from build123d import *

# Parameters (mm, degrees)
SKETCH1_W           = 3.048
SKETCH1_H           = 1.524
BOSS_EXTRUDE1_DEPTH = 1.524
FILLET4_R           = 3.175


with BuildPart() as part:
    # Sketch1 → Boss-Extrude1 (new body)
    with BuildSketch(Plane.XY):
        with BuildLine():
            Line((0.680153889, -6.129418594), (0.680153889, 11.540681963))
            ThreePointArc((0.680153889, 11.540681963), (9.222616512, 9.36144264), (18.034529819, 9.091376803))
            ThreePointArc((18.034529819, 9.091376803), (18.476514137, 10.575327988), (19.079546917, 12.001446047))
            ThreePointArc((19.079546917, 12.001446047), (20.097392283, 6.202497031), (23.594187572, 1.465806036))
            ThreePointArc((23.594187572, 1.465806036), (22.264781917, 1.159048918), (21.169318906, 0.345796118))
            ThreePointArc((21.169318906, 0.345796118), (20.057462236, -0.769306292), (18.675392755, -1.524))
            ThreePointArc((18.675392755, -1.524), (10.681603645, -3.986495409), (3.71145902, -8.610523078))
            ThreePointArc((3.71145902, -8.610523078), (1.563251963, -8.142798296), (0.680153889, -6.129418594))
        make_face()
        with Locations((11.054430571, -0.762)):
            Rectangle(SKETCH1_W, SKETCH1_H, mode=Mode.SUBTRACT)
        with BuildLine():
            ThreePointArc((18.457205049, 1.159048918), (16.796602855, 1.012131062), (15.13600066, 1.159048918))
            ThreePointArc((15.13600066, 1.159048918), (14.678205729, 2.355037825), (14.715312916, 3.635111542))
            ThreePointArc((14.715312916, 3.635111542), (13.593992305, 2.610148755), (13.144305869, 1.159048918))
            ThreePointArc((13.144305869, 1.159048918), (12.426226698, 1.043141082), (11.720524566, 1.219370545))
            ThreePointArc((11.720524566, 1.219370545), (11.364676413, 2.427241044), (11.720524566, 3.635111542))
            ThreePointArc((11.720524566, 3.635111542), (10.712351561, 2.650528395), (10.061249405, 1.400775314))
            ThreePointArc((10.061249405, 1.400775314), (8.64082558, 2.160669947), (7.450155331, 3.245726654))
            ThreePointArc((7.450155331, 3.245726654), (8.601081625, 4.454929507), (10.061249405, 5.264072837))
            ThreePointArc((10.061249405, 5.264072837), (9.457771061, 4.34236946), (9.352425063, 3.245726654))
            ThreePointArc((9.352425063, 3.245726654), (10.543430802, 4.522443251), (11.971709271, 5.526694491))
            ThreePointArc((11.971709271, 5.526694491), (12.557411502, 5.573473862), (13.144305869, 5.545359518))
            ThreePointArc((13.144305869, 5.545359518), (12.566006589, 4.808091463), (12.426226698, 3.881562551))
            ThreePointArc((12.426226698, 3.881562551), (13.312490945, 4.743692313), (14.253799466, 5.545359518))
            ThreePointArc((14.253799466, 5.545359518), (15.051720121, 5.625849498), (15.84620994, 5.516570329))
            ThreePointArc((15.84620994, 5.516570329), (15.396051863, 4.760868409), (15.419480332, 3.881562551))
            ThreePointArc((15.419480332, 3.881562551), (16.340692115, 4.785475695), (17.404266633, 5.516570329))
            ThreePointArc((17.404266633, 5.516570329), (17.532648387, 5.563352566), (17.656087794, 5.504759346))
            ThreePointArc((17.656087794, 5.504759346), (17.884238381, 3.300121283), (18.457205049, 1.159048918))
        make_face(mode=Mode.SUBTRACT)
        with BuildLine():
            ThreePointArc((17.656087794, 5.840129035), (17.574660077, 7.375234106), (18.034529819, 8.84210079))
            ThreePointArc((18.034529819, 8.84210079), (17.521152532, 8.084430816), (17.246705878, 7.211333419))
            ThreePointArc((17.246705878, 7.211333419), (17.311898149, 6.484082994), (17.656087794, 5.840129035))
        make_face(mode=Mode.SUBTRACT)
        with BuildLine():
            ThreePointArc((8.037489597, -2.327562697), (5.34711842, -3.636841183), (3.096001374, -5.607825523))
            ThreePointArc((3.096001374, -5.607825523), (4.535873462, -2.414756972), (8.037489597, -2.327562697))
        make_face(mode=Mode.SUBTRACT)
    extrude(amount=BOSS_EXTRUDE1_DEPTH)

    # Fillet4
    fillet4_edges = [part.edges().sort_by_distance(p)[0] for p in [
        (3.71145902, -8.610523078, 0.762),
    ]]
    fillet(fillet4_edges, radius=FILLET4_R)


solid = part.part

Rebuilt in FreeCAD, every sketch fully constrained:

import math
import FreeCAD as App
import Part
import Sketcher

V = App.Vector
Q = App.Units.Quantity


def edges_at(feature, points):
    """Names of the edges that pass closest to the given points."""
    edges = feature.Shape.Edges
    near = lambda p: min(range(len(edges)), key=lambda i: edges[i].distToShape(Part.Vertex(*p))[0])
    return sorted({f"Edge{near(p) + 1}" for p in points})


def add_polygon(sketch, points):
    """Adds a closed chain of lines whose ends are joined by coincident constraints."""
    first, n = sketch.GeometryCount, len(points)
    for a, b in zip(points, points[1:] + points[:1]):
        sketch.addGeometry(Part.LineSegment(App.Vector(*a, 0), App.Vector(*b, 0)), False)
    for i in range(n):
        sketch.addConstraint(Sketcher.Constraint("Coincident", first + i, 2, first + (i + 1) % n, 1))

doc = App.newDocument("Part")
body = doc.addObject("PartDesign::Body", "Body")

sketch1 = body.newObject("Sketcher::SketchObject", "Sketch")
sketch1.AttachmentSupport = (doc.getObject("XY_Plane"), [""])
sketch1.MapMode = "FlatFace"
sketch1.addGeometry(Part.LineSegment(V(0.680154, 11.540682, 0), V(0.680154, -6.129419, 0)), False)
sketch1.addGeometry(Part.ArcOfCircle(Part.Circle(V(3.096001, -6.270152, 0), V(0, 0, 1), 2.419943), math.radians(176.666045), math.radians(284.733729)), False)
sketch1.addGeometry(Part.ArcOfCircle(Part.Circle(V(23.202224, -30.425094, 0), V(0, 0, 1), 29.253469), math.radians(98.902014), math.radians(131.779979)), False)
sketch1.addGeometry(Part.ArcOfCircle(Part.Circle(V(16.755294, 3.635112, 0), V(0, 0, 1), 5.504835), math.radians(-69.58593), math.radians(-36.693347)), False)
sketch1.addGeometry(Part.ArcOfCircle(Part.Circle(V(23.663791, -1.869864, 0), V(0, 0, 1), 3.336396), math.radians(91.19538), math.radians(138.387612)), False)
sketch1.addGeometry(Part.ArcOfCircle(Part.Circle(V(31.911357, 11.264914, 0), V(0, 0, 1), 12.85293), math.radians(176.714889), math.radians(229.67647)), False)
sketch1.addGeometry(Part.ArcOfCircle(Part.Circle(V(31.662669, 5.840129, 0), V(0, 0, 1), 14.010595), math.radians(153.91135), math.radians(166.581831)), False)
sketch1.addGeometry(Part.ArcOfCircle(Part.Circle(V(14.856022, 49.27653, 0), V(0, 0, 1), 40.310662), math.radians(-110.589216), math.radians(-85.477515)), False)
add_polygon(sketch1, [(9.530431, -1.524), (9.530431, 0), (12.578431, 0), (12.578431, -1.524)])
sketch1.addGeometry(Part.ArcOfCircle(Part.Circle(V(11.58102, -13.027781, 0), V(0, 0, 1), 11.271703), math.radians(108.323028), math.radians(138.831043)), False)
sketch1.addGeometry(Part.ArcOfCircle(Part.Circle(V(6.356045, -5.156719, 0), V(0, 0, 1), 3.291107), math.radians(59.275837), math.radians(187.878234)), False)
sketch1.addGeometry(Part.ArcOfCircle(Part.Circle(V(16.796603, 10.470425, 0), V(0, 0, 1), 9.458294), math.radians(-100.111889), math.radians(-79.888111)), False)
sketch1.addGeometry(Part.ArcOfCircle(Part.Circle(V(17.898951, 2.902249, 0), V(0, 0, 1), 3.2669), math.radians(167.036531), math.radians(212.248634)), False)
sketch1.addGeometry(Part.ArcOfCircle(Part.Circle(V(16.043979, 1.055686, 0), V(0, 0, 1), 2.901515), math.radians(117.253066), math.radians(177.958485)), False)
sketch1.addGeometry(Part.ArcOfCircle(Part.Circle(V(12.502818, 2.850936, 0), V(0, 0, 1), 1.809417), math.radians(-115.616509), math.radians(-69.235513)), False)
sketch1.addGeometry(Part.ArcOfCircle(Part.Circle(V(13.592564, 2.427241, 0), V(0, 0, 1), 2.227887), math.radians(147.169224), math.radians(212.830777)), False)
sketch1.addGeometry(Part.ArcOfCircle(Part.Circle(V(14.296905, -0.011452, 0), V(0, 0, 1), 4.464881), math.radians(125.242074), math.radians(161.56088)), False)
sketch1.addGeometry(Part.ArcOfCircle(Part.Circle(V(12.402064, 7.483817, 0), V(0, 0, 1), 6.517884), math.radians(-139.441438), math.radians(-111.047219)), False)
sketch1.addGeometry(Part.ArcOfCircle(Part.Circle(V(11.971709, 0.094416, 0), V(0, 0, 1), 5.511371), math.radians(110.28192), math.radians(145.125315)), False)
sketch1.addGeometry(Part.ArcOfCircle(Part.Circle(V(11.626802, 3.580626, 0), V(0, 0, 1), 2.298901), math.radians(132.921855), math.radians(188.376547)), False)
sketch1.addGeometry(Part.ArcOfCircle(Part.Circle(V(16.084641, -1.840647, 0), V(0, 0, 1), 8.43765), math.radians(119.173112), math.radians(142.927952)), False)
sketch1.addGeometry(Part.ArcOfCircle(Part.Circle(V(12.630768, 0.96497, 0), V(0, 0, 1), 4.609087), math.radians(83.602907), math.radians(98.220971)), False)
sketch1.addGeometry(Part.ArcOfCircle(Part.Circle(V(14.253799, 4.079656, 0), V(0, 0, 1), 1.838277), math.radians(127.124627), math.radians(186.186224)), False)
sketch1.addGeometry(Part.ArcOfCircle(Part.Circle(V(25.898951, -9.081715, 0), V(0, 0, 1), 18.696547), math.radians(128.524584), math.radians(136.104006)), False)
sketch1.addGeometry(Part.ArcOfCircle(Part.Circle(V(14.990468, 2.237807, 0), V(0, 0, 1), 3.388596), math.radians(75.372373), math.radians(102.556152)), False)
sketch1.addGeometry(Part.ArcOfCircle(Part.Circle(V(16.925622, 4.361658, 0), V(0, 0, 1), 1.580808), math.radians(133.064631), math.radians(197.680115)), False)
sketch1.addGeometry(Part.ArcOfCircle(Part.Circle(V(21.070718, -0.956448, 0), V(0, 0, 1), 7.439276), math.radians(119.52811), math.radians(139.433248)), False)
sketch1.addGeometry(Part.ArcOfCircle(Part.Circle(V(17.524356, 5.386561, 0), V(0, 0, 1), 0.176986), math.radians(41.900576), math.radians(132.728756)), False)
sketch1.addGeometry(Part.ArcOfCircle(Part.Circle(V(31.662669, 5.840129, 0), V(0, 0, 1), 14.010595), math.radians(-178.628388), math.radians(-160.481573)), False)
sketch1.addGeometry(Part.ArcOfCircle(Part.Circle(V(19.066432, 7.00791, 0), V(0, 0, 1), 1.831061), math.radians(173.621513), math.radians(219.625155)), False)
sketch1.addGeometry(Part.ArcOfCircle(Part.Circle(V(20.363494, 6.711295, 0), V(0, 0, 1), 3.156645), math.radians(137.544122), math.radians(170.885489)), False)
sketch1.addGeometry(Part.ArcOfCircle(Part.Circle(V(21.87213, 6.833476, 0), V(0, 0, 1), 4.331483), math.radians(152.372144), math.radians(193.257735)), False)
sketch1.addConstraint([
    Sketcher.Constraint("Coincident", 0, 2, 1, 1),
    Sketcher.Constraint("Coincident", 1, 2, 2, 2),
    Sketcher.Constraint("Coincident", 2, 1, 3, 1),
    Sketcher.Constraint("Coincident", 3, 2, 4, 2),
    Sketcher.Constraint("Coincident", 4, 1, 5, 2),
    Sketcher.Constraint("Coincident", 5, 1, 6, 1),
    Sketcher.Constraint("Coincident", 6, 2, 7, 2),
    Sketcher.Constraint("Coincident", 7, 1, 0, 1),
    Sketcher.Constraint("Coincident", 12, 1, 13, 1),
    Sketcher.Constraint("Coincident", 13, 2, 12, 2),
    Sketcher.Constraint("Coincident", 14, 1, 15, 2),
    Sketcher.Constraint("Coincident", 15, 1, 16, 1),
    Sketcher.Constraint("Coincident", 16, 2, 17, 2),
    Sketcher.Constraint("Coincident", 17, 1, 18, 2),
    Sketcher.Constraint("Coincident", 18, 1, 19, 1),
    Sketcher.Constraint("Coincident", 19, 2, 20, 2),
    Sketcher.Constraint("Coincident", 20, 1, 21, 2),
    Sketcher.Constraint("Coincident", 21, 1, 22, 1),
    Sketcher.Constraint("Coincident", 22, 2, 23, 2),
    Sketcher.Constraint("Coincident", 23, 1, 24, 2),
    Sketcher.Constraint("Coincident", 24, 1, 25, 1),
    Sketcher.Constraint("Coincident", 25, 2, 26, 2),
    Sketcher.Constraint("Coincident", 26, 1, 27, 2),
    Sketcher.Constraint("Coincident", 27, 1, 28, 1),
    Sketcher.Constraint("Coincident", 28, 2, 29, 2),
    Sketcher.Constraint("Coincident", 29, 1, 30, 2),
    Sketcher.Constraint("Coincident", 30, 1, 31, 1),
    Sketcher.Constraint("Coincident", 31, 2, 14, 2),
    Sketcher.Constraint("Coincident", 32, 1, 33, 2),
    Sketcher.Constraint("Coincident", 33, 1, 34, 1),
    Sketcher.Constraint("Coincident", 34, 2, 32, 2),
    Sketcher.Constraint("Vertical", 0),
    Sketcher.Constraint("Vertical", 8),
    Sketcher.Constraint("Horizontal", 9),
    Sketcher.Constraint("Vertical", 10),
    Sketcher.Constraint("Horizontal", 11),
    Sketcher.Constraint("Coincident", 31, 3, 6, 3),
    Sketcher.Constraint("PointOnObject", 8, 2, -1),
    Sketcher.Constraint("DistanceX", 9, 1, 9, 2, Q("0.12 in")),
    Sketcher.Constraint("DistanceY", 8, 1, 8, 2, Q("0.06 in")),
    Sketcher.Constraint("DistanceY", 2, 1, -1, 1, Q("0.06 in")),
    Sketcher.Constraint("Radius", 15, 3.2669),
    Sketcher.Constraint("Radius", 22, 2.298901),
    Sketcher.Constraint("Radius", 2, 29.253469),
    Sketcher.Constraint("Radius", 5, 12.85293),
    Sketcher.Constraint("Radius", 7, 40.310662),
    Sketcher.Constraint("Radius", 19, 4.464881),
    Sketcher.Constraint("Radius", 21, 5.511371),
    Sketcher.Constraint("Radius", 23, 8.43765),
    Sketcher.Constraint("Radius", 32, 1.831061),
    Sketcher.Constraint("DistanceY", 0, 2, 0, 1, 17.670101),
    Sketcher.Constraint("Radius", 1, 2.419943),
    Sketcher.Constraint("Radius", 3, 5.504835),
    Sketcher.Constraint("Radius", 4, 3.336396),
    Sketcher.Constraint("Radius", 6, 14.010595),
    Sketcher.Constraint("Radius", 12, 11.271703),
    Sketcher.Constraint("Radius", 13, 3.291107),
    Sketcher.Constraint("Radius", 14, 9.458294),
    Sketcher.Constraint("Radius", 16, 2.901515),
    Sketcher.Constraint("Radius", 17, 1.809417),
    Sketcher.Constraint("Radius", 18, 2.227887),
    Sketcher.Constraint("Radius", 20, 6.517884),
    Sketcher.Constraint("Radius", 24, 4.609087),
    Sketcher.Constraint("Radius", 25, 1.838277),
    Sketcher.Constraint("Radius", 26, 18.696547),
    Sketcher.Constraint("Radius", 27, 3.388596),
    Sketcher.Constraint("Radius", 28, 1.580808),
    Sketcher.Constraint("Radius", 29, 7.439276),
    Sketcher.Constraint("Radius", 30, 0.176986),
    Sketcher.Constraint("Radius", 31, 14.010595),
    Sketcher.Constraint("Radius", 33, 3.156645),
    Sketcher.Constraint("Radius", 34, 4.331483),
    Sketcher.Constraint("DistanceX", -1, 1, 1, 3, 3.096001),
    Sketcher.Constraint("DistanceX", -1, 1, 22, 3, 11.626802),
    Sketcher.Constraint("DistanceX", -1, 1, 25, 3, 14.253799),
    Sketcher.Constraint("DistanceX", -1, 1, 13, 2, 3.096001),
    Sketcher.Constraint("DistanceX", -1, 1, 14, 1, 15.136001),
    Sketcher.Constraint("DistanceX", -1, 1, 26, 1, 14.253799),
    Sketcher.Constraint("DistanceY", -1, 1, 33, 1, 8.842101),
    Sketcher.Constraint("DistanceY", 1, 3, -1, 1, 6.270152),
    Sketcher.Constraint("DistanceY", -1, 1, 3, 3, 3.635112),
    Sketcher.Constraint("DistanceX", -1, 1, 4, 3, 23.663791),
    Sketcher.Constraint("DistanceX", -1, 1, 6, 3, 31.662669),
    Sketcher.Constraint("DistanceY", -1, 1, 6, 3, 5.840129),
    Sketcher.Constraint("DistanceX", -1, 1, 7, 3, 14.856022),
    Sketcher.Constraint("DistanceY", -1, 1, 7, 3, 49.27653),
    Sketcher.Constraint("DistanceX", -1, 1, 12, 3, 11.58102),
    Sketcher.Constraint("DistanceY", 12, 3, -1, 1, 13.027781),
    Sketcher.Constraint("DistanceY", 13, 3, -1, 1, 5.156719),
    Sketcher.Constraint("DistanceX", -1, 1, 15, 3, 17.898951),
    Sketcher.Constraint("DistanceY", -1, 1, 15, 3, 2.902249),
    Sketcher.Constraint("DistanceX", -1, 1, 16, 3, 16.043979),
    Sketcher.Constraint("DistanceY", -1, 1, 18, 3, 2.427241),
    Sketcher.Constraint("DistanceX", -1, 1, 21, 3, 11.971709),
    Sketcher.Constraint("DistanceX", -1, 1, 23, 3, 16.084641),
    Sketcher.Constraint("DistanceX", -1, 1, 24, 3, 12.630768),
    Sketcher.Constraint("DistanceY", -1, 1, 24, 3, 0.96497),
    Sketcher.Constraint("DistanceX", -1, 1, 26, 3, 25.898951),
    Sketcher.Constraint("DistanceX", -1, 1, 28, 3, 16.925622),
    Sketcher.Constraint("DistanceY", 29, 3, -1, 1, 0.956448),
    Sketcher.Constraint("DistanceY", -1, 1, 30, 3, 5.386561),
    Sketcher.Constraint("DistanceX", -1, 1, 32, 3, 19.066432),
    Sketcher.Constraint("DistanceY", -1, 1, 32, 3, 7.00791),
    Sketcher.Constraint("DistanceX", -1, 1, 34, 3, 21.87213),
    Sketcher.Constraint("DistanceX", -1, 1, 1, 2, 3.711459),
    Sketcher.Constraint("DistanceX", -1, 1, 3, 2, 21.169319),
    Sketcher.Constraint("DistanceX", -1, 1, 8, 2, 9.530431),
    Sketcher.Constraint("DistanceY", -1, 1, 15, 1, 3.635112),
    Sketcher.Constraint("DistanceY", -1, 1, 16, 2, 1.159049),
    Sketcher.Constraint("DistanceY", -1, 1, 17, 1, 1.219371),
    Sketcher.Constraint("DistanceY", -1, 1, 18, 1, 3.635112),
    Sketcher.Constraint("DistanceX", -1, 1, 19, 2, 10.061249),
    Sketcher.Constraint("DistanceX", -1, 1, 21, 1, 10.061249),
    Sketcher.Constraint("DistanceX", -1, 1, 23, 1, 11.971709),
    Sketcher.Constraint("DistanceY", -1, 1, 24, 1, 5.54536),
    Sketcher.Constraint("DistanceY", -1, 1, 26, 1, 5.54536),
    Sketcher.Constraint("DistanceX", -1, 1, 27, 1, 15.84621),
    Sketcher.Constraint("DistanceY", -1, 1, 27, 1, 5.51657),
    Sketcher.Constraint("DistanceX", -1, 1, 28, 2, 15.41948),
    Sketcher.Constraint("DistanceY", -1, 1, 29, 1, 5.51657),
    Sketcher.Constraint("DistanceY", -1, 1, 31, 2, 1.159049),
    Sketcher.Constraint("DistanceX", -1, 1, 33, 1, 18.03453),
    Sketcher.Constraint("DistanceX", -1, 1, 2, 3, 23.202224),
    Sketcher.Constraint("DistanceX", -1, 1, 5, 3, 31.911357),
    Sketcher.Constraint("DistanceY", -1, 1, 5, 3, 11.264914),
    Sketcher.Constraint("DistanceX", -1, 1, 17, 3, 12.502818),
    Sketcher.Constraint("DistanceX", -1, 1, 19, 3, 14.296905),
    Sketcher.Constraint("DistanceX", -1, 1, 20, 3, 12.402064),
    Sketcher.Constraint("DistanceY", -1, 1, 21, 3, 0.094416),
    Sketcher.Constraint("DistanceX", -1, 1, 33, 3, 20.363494),
])
pad1 = body.newObject("PartDesign::Pad", "Pad")
pad1.Profile = sketch1
pad1.Length = Q("0.06 in")
doc.recompute()

fillet = body.newObject("PartDesign::Fillet", "Fillet")
fillet.Base = (pad1, edges_at(pad1, [(3.711, -8.611, 0.762)]))
fillet.Radius = Q("0.125 in")

doc.recompute()
